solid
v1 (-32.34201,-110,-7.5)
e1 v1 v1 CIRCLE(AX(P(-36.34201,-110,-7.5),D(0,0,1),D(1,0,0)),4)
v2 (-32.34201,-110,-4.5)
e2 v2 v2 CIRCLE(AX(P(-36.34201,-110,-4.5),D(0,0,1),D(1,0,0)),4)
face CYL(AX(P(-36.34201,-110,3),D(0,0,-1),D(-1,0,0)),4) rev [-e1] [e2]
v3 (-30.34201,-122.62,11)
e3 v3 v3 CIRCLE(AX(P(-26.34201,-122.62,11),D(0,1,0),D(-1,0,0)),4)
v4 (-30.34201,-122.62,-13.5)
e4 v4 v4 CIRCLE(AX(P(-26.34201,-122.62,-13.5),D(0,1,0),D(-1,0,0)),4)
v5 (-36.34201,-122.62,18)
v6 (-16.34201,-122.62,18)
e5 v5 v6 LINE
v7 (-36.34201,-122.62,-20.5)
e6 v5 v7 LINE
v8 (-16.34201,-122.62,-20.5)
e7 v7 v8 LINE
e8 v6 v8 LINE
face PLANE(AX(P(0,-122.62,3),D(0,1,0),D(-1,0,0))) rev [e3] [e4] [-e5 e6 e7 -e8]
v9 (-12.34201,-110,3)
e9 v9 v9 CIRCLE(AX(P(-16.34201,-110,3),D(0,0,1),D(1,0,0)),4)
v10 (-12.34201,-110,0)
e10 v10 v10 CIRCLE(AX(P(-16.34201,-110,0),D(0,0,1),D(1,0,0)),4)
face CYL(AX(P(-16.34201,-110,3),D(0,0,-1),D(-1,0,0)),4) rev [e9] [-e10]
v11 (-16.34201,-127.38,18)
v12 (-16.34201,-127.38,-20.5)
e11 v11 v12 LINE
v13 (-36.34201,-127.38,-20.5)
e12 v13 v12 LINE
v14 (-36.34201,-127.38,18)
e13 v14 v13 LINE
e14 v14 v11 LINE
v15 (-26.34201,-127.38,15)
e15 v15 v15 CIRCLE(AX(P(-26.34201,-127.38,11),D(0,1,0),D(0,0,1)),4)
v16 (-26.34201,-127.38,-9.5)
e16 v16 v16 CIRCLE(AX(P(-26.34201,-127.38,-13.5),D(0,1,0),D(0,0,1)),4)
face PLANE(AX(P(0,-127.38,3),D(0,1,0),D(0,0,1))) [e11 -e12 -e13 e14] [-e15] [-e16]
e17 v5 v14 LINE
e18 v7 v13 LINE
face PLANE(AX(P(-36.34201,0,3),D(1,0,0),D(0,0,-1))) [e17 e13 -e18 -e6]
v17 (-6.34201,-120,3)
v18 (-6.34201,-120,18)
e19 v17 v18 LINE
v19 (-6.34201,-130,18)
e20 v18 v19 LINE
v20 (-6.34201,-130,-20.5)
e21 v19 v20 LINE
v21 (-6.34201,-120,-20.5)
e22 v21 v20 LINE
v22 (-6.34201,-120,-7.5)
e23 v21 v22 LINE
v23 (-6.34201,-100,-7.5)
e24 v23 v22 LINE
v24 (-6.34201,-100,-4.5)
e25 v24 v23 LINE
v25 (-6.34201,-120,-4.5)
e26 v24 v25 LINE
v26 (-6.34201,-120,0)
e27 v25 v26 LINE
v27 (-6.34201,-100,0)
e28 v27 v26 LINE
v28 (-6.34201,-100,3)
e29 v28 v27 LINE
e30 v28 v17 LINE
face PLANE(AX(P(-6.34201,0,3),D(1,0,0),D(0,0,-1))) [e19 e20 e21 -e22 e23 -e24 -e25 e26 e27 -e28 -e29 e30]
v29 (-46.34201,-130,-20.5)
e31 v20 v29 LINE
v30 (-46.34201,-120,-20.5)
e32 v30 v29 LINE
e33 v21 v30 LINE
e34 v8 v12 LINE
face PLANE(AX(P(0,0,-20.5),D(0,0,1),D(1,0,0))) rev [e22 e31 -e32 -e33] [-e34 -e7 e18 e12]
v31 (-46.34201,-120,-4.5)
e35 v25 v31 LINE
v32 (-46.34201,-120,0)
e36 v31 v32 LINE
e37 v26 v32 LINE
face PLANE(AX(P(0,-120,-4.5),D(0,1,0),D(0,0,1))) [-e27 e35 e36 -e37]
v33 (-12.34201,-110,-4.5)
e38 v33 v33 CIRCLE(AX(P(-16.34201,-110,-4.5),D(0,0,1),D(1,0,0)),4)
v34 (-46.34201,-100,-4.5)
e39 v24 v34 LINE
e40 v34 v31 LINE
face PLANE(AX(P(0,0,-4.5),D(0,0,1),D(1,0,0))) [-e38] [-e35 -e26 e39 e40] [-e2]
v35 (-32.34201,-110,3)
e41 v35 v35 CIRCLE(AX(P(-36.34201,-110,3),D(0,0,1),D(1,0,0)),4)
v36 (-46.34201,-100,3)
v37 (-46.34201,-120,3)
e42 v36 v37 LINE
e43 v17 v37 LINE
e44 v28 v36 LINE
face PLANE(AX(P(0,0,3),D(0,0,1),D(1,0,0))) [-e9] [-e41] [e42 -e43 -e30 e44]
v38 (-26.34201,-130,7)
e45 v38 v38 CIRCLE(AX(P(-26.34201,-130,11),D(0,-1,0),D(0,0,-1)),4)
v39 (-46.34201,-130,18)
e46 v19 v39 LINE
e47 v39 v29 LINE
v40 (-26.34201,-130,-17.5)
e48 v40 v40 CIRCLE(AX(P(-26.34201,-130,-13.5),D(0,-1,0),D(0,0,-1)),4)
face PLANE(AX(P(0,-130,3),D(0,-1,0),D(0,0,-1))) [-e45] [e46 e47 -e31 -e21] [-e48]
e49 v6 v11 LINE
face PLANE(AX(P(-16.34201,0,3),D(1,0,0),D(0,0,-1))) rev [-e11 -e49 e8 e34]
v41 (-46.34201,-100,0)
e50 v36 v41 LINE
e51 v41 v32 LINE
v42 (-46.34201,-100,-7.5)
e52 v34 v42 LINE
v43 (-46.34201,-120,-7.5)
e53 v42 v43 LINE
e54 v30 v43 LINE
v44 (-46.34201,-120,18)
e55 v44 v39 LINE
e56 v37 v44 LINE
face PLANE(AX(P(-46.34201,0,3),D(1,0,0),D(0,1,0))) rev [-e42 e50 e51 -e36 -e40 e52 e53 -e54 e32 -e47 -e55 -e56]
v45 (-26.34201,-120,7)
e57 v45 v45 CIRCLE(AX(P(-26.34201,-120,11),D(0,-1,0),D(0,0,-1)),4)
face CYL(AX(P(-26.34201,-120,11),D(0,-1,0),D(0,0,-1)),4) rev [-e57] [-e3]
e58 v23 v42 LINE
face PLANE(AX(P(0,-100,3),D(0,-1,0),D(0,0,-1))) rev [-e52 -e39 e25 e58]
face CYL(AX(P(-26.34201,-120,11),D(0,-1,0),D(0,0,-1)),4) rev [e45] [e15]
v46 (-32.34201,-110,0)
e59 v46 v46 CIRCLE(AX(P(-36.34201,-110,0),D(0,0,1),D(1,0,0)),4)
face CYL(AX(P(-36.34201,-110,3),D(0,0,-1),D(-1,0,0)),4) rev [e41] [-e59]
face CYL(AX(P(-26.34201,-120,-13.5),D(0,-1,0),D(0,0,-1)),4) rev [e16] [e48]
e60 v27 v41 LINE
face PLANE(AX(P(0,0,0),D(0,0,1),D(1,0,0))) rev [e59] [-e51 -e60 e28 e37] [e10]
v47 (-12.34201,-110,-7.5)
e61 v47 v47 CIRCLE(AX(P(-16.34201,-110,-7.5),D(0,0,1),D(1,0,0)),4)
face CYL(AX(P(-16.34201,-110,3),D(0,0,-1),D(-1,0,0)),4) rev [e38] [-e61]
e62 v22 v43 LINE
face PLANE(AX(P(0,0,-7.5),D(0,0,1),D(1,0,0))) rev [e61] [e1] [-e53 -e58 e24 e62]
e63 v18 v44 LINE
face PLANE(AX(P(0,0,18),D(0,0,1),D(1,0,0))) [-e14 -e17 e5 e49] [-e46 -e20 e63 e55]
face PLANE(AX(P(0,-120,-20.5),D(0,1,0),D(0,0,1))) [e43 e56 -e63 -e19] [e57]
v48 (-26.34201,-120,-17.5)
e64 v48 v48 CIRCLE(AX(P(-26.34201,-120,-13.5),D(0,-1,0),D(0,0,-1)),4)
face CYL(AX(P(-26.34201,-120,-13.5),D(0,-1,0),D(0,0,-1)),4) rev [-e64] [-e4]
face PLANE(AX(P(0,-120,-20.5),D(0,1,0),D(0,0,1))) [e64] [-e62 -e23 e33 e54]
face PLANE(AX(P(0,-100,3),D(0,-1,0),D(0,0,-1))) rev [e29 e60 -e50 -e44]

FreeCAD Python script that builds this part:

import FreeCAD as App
import Part
import Sketcher
from FreeCAD import Vector
Q = App.Units.Quantity


def add_polygon(sketch, points):
    """Adds a closed chain of lines whose ends are joined by coincident constraints."""
    first, n = sketch.GeometryCount, len(points)
    for a, b in zip(points, points[1:] + points[:1]):
        sketch.addGeometry(Part.LineSegment(App.Vector(*a, 0), App.Vector(*b, 0)), False)
    for i in range(n):
        sketch.addConstraint(Sketcher.Constraint("Coincident", first + i, 2, first + (i + 1) % n, 1))

doc = App.newDocument("Part")
body = doc.addObject("PartDesign::Body", "Body")

sketch1 = body.newObject("Sketcher::SketchObject", "Sketch")
sketch1.AttachmentSupport = (doc.getObject("XY_Plane"), [""])
sketch1.MapMode = "FlatFace"
add_polygon(sketch1, [(-46.3, -100), (-46.3, -130), (-6.3, -130), (-6.3, -100)])
add_polygon(sketch1, [(-16.3, -127.4), (-36.3, -127.4), (-36.3, -122.6), (-16.3, -122.6)])
sketch1.addGeometry(Part.Circle(Vector(-36.3, -110, 0), Vector(0, 0, 1), 4), False)
sketch1.addGeometry(Part.Circle(Vector(-16.3, -110, 0), Vector(0, 0, 1), 4), False)
sketch1.addConstraint([
    Sketcher.Constraint("Vertical", 0),
    Sketcher.Constraint("Horizontal", 1),
    Sketcher.Constraint("Vertical", 2),
    Sketcher.Constraint("Horizontal", 3),
    Sketcher.Constraint("Horizontal", 4),
    Sketcher.Constraint("Vertical", 5),
    Sketcher.Constraint("Horizontal", 6),
    Sketcher.Constraint("Vertical", 7),
    Sketcher.Constraint("Equal", 8, 9),
    Sketcher.Constraint("Horizontal", 8, 3, 9, 3),
    Sketcher.Constraint("Vertical", 8, 3, 4, 2),
    Sketcher.Constraint("Vertical", 9, 3, 6, 2),
    Sketcher.Constraint("Diameter", 8, Q("8 mm")),
    Sketcher.Constraint("DistanceX", 1, 1, 1, 2, Q("40 mm")),
    Sketcher.Constraint("DistanceX", 4, 2, 4, 1, Q("20 mm")),
    Sketcher.Constraint("DistanceY", 0, 2, 0, 1, Q("30 mm")),
    Sketcher.Constraint("DistanceY", 8, 3, -1, 1, Q("110 mm")),
    Sketcher.Constraint("DistanceY", 0, 2, -1, 1, Q("130 mm")),
    Sketcher.Constraint("DistanceX", 0, 2, 8, 3, Q("10 mm")),
    Sketcher.Constraint("DistanceY", 5, 1, 5, 2, Q("4.76 mm")),
    Sketcher.Constraint("DistanceY", 4, 2, -1, 1, Q("127.38 mm")),
    Sketcher.Constraint("DistanceX", 8, 3, -1, 1, Q("36.34201 mm")),
])
pad1 = body.newObject("PartDesign::Pad", "Pad")
pad1.Profile = sketch1
pad1.Length = 3

sketch2 = body.newObject("Sketcher::SketchObject", "Sketch001")
sketch2.AttachmentSupport = (doc.getObject("XY_Plane"), [""])
sketch2.MapMode = "FlatFace"
add_polygon(sketch2, [(-46.3, -100), (-46.3, -130), (-6.3, -130), (-6.3, -100)])
add_polygon(sketch2, [(-16.3, -127.4), (-36.3, -127.4), (-36.3, -122.6), (-16.3, -122.6)])
sketch2.addGeometry(Part.Circle(Vector(-36.3, -110, 0), Vector(0, 0, 1), 4), False)
sketch2.addGeometry(Part.Circle(Vector(-16.3, -110, 0), Vector(0, 0, 1), 4), False)
sketch2.addConstraint([
    Sketcher.Constraint("Vertical", 0),
    Sketcher.Constraint("Horizontal", 1),
    Sketcher.Constraint("Vertical", 2),
    Sketcher.Constraint("Horizontal", 3),
    Sketcher.Constraint("Horizontal", 4),
    Sketcher.Constraint("Vertical", 5),
    Sketcher.Constraint("Horizontal", 6),
    Sketcher.Constraint("Vertical", 7),
    Sketcher.Constraint("Equal", 8, 9),
    Sketcher.Constraint("Horizontal", 8, 3, 9, 3),
    Sketcher.Constraint("Vertical", 8, 3, 4, 2),
    Sketcher.Constraint("Vertical", 9, 3, 6, 2),
    Sketcher.Constraint("Diameter", 8, Q("8 mm")),
    Sketcher.Constraint("DistanceX", 1, 1, 1, 2, Q("40 mm")),
    Sketcher.Constraint("DistanceX", 4, 2, 4, 1, Q("20 mm")),
    Sketcher.Constraint("DistanceY", 0, 2, 0, 1, Q("30 mm")),
    Sketcher.Constraint("DistanceY", 8, 3, -1, 1, Q("110 mm")),
    Sketcher.Constraint("DistanceY", 0, 2, -1, 1, Q("130 mm")),
    Sketcher.Constraint("DistanceX", 0, 2, 8, 3, Q("10 mm")),
    Sketcher.Constraint("DistanceY", 5, 1, 5, 2, Q("4.76 mm")),
    Sketcher.Constraint("DistanceY", 4, 2, -1, 1, Q("127.38 mm")),
    Sketcher.Constraint("DistanceX", 8, 3, -1, 1, Q("36.34201 mm")),
])
pad2 = body.newObject("PartDesign::Pad", "Pad001")
pad2.Profile = sketch2
pad2.Length = 7.5
pad2.Reversed = True

sketch3 = body.newObject("Sketcher::SketchObject", "Sketch002")
sketch3.AttachmentSupport = (doc.getObject("XY_Plane"), [""])
sketch3.MapMode = "FlatFace"
add_polygon(sketch3, [(-46.3, -100), (-46.3, -120), (-6.3, -120), (-6.3, -100)])
sketch3.addGeometry(Part.Circle(Vector(-36.3, -110, 0), Vector(0, 0, 1), 4), False)
sketch3.addGeometry(Part.Circle(Vector(-16.3, -110, 0), Vector(0, 0, 1), 4), False)
sketch3.addConstraint([
    Sketcher.Constraint("Vertical", 0),
    Sketcher.Constraint("Horizontal", 1),
    Sketcher.Constraint("Vertical", 2),
    Sketcher.Constraint("Horizontal", 3),
    Sketcher.Constraint("Equal", 4, 5),
    Sketcher.Constraint("Horizontal", 4, 3, 5, 3),
    Sketcher.Constraint("Diameter", 4, Q("8 mm")),
    Sketcher.Constraint("DistanceX", 1, 1, 1, 2, Q("40 mm")),
    Sketcher.Constraint("DistanceY", 0, 2, 0, 1, Q("20 mm")),
    Sketcher.Constraint("DistanceY", 4, 3, -1, 1, Q("110 mm")),
    Sketcher.Constraint("DistanceY", 0, 2, -1, 1, Q("120 mm")),
    Sketcher.Constraint("DistanceX", 4, 3, 5, 3, Q("20 mm")),
    Sketcher.Constraint("DistanceX", 0, 2, 4, 3, Q("10 mm")),
    Sketcher.Constraint("DistanceX", 4, 3, -1, 1, Q("36.34201 mm")),
])
pocket1 = body.newObject("PartDesign::Pocket", "Pocket")
pocket1.Profile = sketch3
pocket1.Length = 4.5

sketch4 = body.newObject("Sketcher::SketchObject", "Sketch003")
sketch4.AttachmentSupport = (doc.getObject("XY_Plane"), [""])
sketch4.MapMode = "FlatFace"
add_polygon(sketch4, [(-46.3, -120), (-46.3, -130), (-6.3, -130), (-6.3, -120)])
add_polygon(sketch4, [(-16.3, -127.4), (-36.3, -127.4), (-36.3, -122.6), (-16.3, -122.6)])
sketch4.addConstraint([
    Sketcher.Constraint("Vertical", 0),
    Sketcher.Constraint("Horizontal", 1),
    Sketcher.Constraint("Vertical", 2),
    Sketcher.Constraint("Horizontal", 3),
    Sketcher.Constraint("Horizontal", 4),
    Sketcher.Constraint("Vertical", 5),
    Sketcher.Constraint("Horizontal", 6),
    Sketcher.Constraint("Vertical", 7),
    Sketcher.Constraint("DistanceX", 1, 1, 1, 2, Q("40 mm")),
    Sketcher.Constraint("DistanceX", 4, 2, 4, 1, Q("20 mm")),
    Sketcher.Constraint("DistanceY", 0, 2, 0, 1, Q("10 mm")),
    Sketcher.Constraint("DistanceY", 0, 2, -1, 1, Q("130 mm")),
    Sketcher.Constraint("DistanceX", 0, 2, 4, 2, Q("10 mm")),
    Sketcher.Constraint("DistanceY", 5, 1, 5, 2, Q("4.76 mm")),
    Sketcher.Constraint("DistanceY", 4, 2, -1, 1, Q("127.38 mm")),
    Sketcher.Constraint("DistanceX", 0, 2, -1, 1, Q("46.34201 mm")),
])
pad3 = body.newObject("PartDesign::Pad", "Pad002")
pad3.Profile = sketch4
pad3.Type = "TwoLengths"
pad3.Length = 18
pad3.Length2 = 20.5

sketch5 = body.newObject("Sketcher::SketchObject", "Sketch004")
sketch5.AttachmentSupport = (doc.getObject("XZ_Plane"), [""])
sketch5.MapMode = "FlatFace"
sketch5.AttachmentOffset = App.Placement(Vector(0, 0, 130), App.Rotation())
sketch5.addGeometry([
    Part.Circle(Vector(-26.3, 11, 0), Vector(0, 0, 1), 4),
    Part.Circle(Vector(-26.3, -13.5, 0), Vector(0, 0, 1), 4),
], False)
sketch5.addConstraint([
    Sketcher.Constraint("Equal", 0, 1),
    Sketcher.Constraint("Vertical", 0, 3, 1, 3),
    Sketcher.Constraint("Diameter", 0, Q("8 mm")),
    Sketcher.Constraint("DistanceY", -1, 1, 0, 3, Q("11 mm")),
    Sketcher.Constraint("DistanceY", 1, 3, -1, 1, Q("13.5 mm")),
    Sketcher.Constraint("DistanceX", 0, 3, -1, 1, Q("26.34201 mm")),
])
pocket2 = body.newObject("PartDesign::Pocket", "Pocket001")
pocket2.Profile = sketch5
pocket2.Length = 10

doc.recompute()
